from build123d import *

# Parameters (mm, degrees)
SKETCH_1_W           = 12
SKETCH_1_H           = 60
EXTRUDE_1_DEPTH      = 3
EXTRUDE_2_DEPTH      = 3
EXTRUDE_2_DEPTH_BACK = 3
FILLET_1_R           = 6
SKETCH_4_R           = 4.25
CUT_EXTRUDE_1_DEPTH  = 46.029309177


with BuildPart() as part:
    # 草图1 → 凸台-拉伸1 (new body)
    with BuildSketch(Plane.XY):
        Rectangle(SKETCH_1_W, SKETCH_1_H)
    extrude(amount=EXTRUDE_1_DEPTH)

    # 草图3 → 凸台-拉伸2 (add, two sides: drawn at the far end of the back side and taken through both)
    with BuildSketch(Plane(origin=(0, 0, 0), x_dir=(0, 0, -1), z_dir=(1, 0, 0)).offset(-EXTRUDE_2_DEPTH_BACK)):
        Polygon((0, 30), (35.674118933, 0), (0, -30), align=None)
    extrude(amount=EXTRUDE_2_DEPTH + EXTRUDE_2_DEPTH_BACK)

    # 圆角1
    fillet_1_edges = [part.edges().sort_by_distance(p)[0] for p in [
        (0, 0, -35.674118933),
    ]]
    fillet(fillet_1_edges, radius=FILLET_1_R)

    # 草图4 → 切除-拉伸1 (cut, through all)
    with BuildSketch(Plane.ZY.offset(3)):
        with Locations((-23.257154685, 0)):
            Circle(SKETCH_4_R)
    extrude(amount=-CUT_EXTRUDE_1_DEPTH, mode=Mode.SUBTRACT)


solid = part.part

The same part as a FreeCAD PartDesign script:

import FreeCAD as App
import Part
import Sketcher
Q = App.Units.Quantity


def edges_at(feature, points):
    """Names of the edges that pass closest to the given points."""
    edges = feature.Shape.Edges
    near = lambda p: min(range(len(edges)), key=lambda i: edges[i].distToShape(Part.Vertex(*p))[0])
    return sorted({f"Edge{near(p) + 1}" for p in points})

doc = App.newDocument("Part")
body = doc.addObject("PartDesign::Body", "Body")

sketch1 = body.newObject("Sketcher::SketchObject", "Sketch")
sketch1.AttachmentSupport = (doc.getObject("XY_Plane"), [""])
sketch1.MapMode = "FlatFace"
sketch1.addGeometry([
    Part.LineSegment(App.Vector(-6, 30, 0), App.Vector(-6, -30, 0)),
    Part.LineSegment(App.Vector(-6, -30, 0), App.Vector(6, -30, 0)),
    Part.LineSegment(App.Vector(6, -30, 0), App.Vector(6, 30, 0)),
    Part.LineSegment(App.Vector(6, 30, 0), App.Vector(-6, 30, 0)),
], False)
sketch1.addConstraint([
    Sketcher.Constraint("Coincident", 0, 2, 1, 1),
    Sketcher.Constraint("Coincident", 1, 2, 2, 1),
    Sketcher.Constraint("Coincident", 2, 2, 3, 1),
    Sketcher.Constraint("Coincident", 3, 2, 0, 1),
    Sketcher.Constraint("Vertical", 0),
    Sketcher.Constraint("Horizontal", 1),
    Sketcher.Constraint("Vertical", 2),
    Sketcher.Constraint("Horizontal", 3),
    Sketcher.Constraint("Symmetric", 0, 2, 2, 2, -1, 1),
    Sketcher.Constraint("DistanceX", 1, 1, 1, 2, Q("12 mm")),
    Sketcher.Constraint("DistanceY", 0, 2, 0, 1, Q("60 mm")),
])
pad1 = body.newObject("PartDesign::Pad", "Pad")
pad1.Profile = sketch1
pad1.Length = 3

sketch2 = body.newObject("Sketcher::SketchObject", "Sketch001")
sketch2.AttachmentSupport = (doc.getObject("YZ_Plane"), [""])
sketch2.MapMode = "FlatFace"
sketch2.addGeometry([
    Part.LineSegment(App.Vector(0, -35.674119, 0), App.Vector(30, 0, 0)),
    Part.LineSegment(App.Vector(30, 0, 0), App.Vector(-30, 0, 0)),
    Part.LineSegment(App.Vector(-30, 0, 0), App.Vector(0, -35.674119, 0)),
], False)
sketch2.addConstraint([
    Sketcher.Constraint("Coincident", 0, 2, 1, 1),
    Sketcher.Constraint("Coincident", 1, 2, 2, 1),
    Sketcher.Constraint("Coincident", 2, 2, 0, 1),
    Sketcher.Constraint("Horizontal", 1),
    Sketcher.Constraint("Symmetric", 0, 2, 1, 2, -1, 1),
    Sketcher.Constraint("PointOnObject", 2, 2, -2),
    Sketcher.Constraint("DistanceX", 1, 2, 1, 1, Q("60 mm")),
    Sketcher.Constraint("DistanceY", 2, 2, -1, 1, Q("35.674119 mm")),
])
pad2 = body.newObject("PartDesign::Pad", "Pad001")
pad2.Profile = sketch2
pad2.Type = "TwoLengths"
pad2.Length = 3
pad2.Length2 = 3
doc.recompute()

fillet = body.newObject("PartDesign::Fillet", "Fillet")
fillet.Base = (pad2, edges_at(pad2, [(0, 0, -35.674)]))
fillet.Radius = 6

sketch3 = body.newObject("Sketcher::SketchObject", "Sketch002")
sketch3.AttachmentSupport = (doc.getObject("YZ_Plane"), [""])
sketch3.MapMode = "FlatFace"
sketch3.AttachmentOffset = App.Placement(App.Vector(0, 0, -3), App.Rotation())
sketch3.addGeometry(Part.Circle(App.Vector(0, -23.257155, 0), App.Vector(0, 0, 1), 4.25), False)
sketch3.addConstraint([
    Sketcher.Constraint("PointOnObject", 0, 3, -2),
    Sketcher.Constraint("Diameter", 0, Q("8.5 mm")),
    Sketcher.Constraint("DistanceY", 0, 3, -1, 1, Q("23.257155 mm")),
])
pocket1 = body.newObject("PartDesign::Pocket", "Pocket")
pocket1.Profile = sketch3
pocket1.Type = "ThroughAll"
pocket1.Reversed = True

doc.recompute()
